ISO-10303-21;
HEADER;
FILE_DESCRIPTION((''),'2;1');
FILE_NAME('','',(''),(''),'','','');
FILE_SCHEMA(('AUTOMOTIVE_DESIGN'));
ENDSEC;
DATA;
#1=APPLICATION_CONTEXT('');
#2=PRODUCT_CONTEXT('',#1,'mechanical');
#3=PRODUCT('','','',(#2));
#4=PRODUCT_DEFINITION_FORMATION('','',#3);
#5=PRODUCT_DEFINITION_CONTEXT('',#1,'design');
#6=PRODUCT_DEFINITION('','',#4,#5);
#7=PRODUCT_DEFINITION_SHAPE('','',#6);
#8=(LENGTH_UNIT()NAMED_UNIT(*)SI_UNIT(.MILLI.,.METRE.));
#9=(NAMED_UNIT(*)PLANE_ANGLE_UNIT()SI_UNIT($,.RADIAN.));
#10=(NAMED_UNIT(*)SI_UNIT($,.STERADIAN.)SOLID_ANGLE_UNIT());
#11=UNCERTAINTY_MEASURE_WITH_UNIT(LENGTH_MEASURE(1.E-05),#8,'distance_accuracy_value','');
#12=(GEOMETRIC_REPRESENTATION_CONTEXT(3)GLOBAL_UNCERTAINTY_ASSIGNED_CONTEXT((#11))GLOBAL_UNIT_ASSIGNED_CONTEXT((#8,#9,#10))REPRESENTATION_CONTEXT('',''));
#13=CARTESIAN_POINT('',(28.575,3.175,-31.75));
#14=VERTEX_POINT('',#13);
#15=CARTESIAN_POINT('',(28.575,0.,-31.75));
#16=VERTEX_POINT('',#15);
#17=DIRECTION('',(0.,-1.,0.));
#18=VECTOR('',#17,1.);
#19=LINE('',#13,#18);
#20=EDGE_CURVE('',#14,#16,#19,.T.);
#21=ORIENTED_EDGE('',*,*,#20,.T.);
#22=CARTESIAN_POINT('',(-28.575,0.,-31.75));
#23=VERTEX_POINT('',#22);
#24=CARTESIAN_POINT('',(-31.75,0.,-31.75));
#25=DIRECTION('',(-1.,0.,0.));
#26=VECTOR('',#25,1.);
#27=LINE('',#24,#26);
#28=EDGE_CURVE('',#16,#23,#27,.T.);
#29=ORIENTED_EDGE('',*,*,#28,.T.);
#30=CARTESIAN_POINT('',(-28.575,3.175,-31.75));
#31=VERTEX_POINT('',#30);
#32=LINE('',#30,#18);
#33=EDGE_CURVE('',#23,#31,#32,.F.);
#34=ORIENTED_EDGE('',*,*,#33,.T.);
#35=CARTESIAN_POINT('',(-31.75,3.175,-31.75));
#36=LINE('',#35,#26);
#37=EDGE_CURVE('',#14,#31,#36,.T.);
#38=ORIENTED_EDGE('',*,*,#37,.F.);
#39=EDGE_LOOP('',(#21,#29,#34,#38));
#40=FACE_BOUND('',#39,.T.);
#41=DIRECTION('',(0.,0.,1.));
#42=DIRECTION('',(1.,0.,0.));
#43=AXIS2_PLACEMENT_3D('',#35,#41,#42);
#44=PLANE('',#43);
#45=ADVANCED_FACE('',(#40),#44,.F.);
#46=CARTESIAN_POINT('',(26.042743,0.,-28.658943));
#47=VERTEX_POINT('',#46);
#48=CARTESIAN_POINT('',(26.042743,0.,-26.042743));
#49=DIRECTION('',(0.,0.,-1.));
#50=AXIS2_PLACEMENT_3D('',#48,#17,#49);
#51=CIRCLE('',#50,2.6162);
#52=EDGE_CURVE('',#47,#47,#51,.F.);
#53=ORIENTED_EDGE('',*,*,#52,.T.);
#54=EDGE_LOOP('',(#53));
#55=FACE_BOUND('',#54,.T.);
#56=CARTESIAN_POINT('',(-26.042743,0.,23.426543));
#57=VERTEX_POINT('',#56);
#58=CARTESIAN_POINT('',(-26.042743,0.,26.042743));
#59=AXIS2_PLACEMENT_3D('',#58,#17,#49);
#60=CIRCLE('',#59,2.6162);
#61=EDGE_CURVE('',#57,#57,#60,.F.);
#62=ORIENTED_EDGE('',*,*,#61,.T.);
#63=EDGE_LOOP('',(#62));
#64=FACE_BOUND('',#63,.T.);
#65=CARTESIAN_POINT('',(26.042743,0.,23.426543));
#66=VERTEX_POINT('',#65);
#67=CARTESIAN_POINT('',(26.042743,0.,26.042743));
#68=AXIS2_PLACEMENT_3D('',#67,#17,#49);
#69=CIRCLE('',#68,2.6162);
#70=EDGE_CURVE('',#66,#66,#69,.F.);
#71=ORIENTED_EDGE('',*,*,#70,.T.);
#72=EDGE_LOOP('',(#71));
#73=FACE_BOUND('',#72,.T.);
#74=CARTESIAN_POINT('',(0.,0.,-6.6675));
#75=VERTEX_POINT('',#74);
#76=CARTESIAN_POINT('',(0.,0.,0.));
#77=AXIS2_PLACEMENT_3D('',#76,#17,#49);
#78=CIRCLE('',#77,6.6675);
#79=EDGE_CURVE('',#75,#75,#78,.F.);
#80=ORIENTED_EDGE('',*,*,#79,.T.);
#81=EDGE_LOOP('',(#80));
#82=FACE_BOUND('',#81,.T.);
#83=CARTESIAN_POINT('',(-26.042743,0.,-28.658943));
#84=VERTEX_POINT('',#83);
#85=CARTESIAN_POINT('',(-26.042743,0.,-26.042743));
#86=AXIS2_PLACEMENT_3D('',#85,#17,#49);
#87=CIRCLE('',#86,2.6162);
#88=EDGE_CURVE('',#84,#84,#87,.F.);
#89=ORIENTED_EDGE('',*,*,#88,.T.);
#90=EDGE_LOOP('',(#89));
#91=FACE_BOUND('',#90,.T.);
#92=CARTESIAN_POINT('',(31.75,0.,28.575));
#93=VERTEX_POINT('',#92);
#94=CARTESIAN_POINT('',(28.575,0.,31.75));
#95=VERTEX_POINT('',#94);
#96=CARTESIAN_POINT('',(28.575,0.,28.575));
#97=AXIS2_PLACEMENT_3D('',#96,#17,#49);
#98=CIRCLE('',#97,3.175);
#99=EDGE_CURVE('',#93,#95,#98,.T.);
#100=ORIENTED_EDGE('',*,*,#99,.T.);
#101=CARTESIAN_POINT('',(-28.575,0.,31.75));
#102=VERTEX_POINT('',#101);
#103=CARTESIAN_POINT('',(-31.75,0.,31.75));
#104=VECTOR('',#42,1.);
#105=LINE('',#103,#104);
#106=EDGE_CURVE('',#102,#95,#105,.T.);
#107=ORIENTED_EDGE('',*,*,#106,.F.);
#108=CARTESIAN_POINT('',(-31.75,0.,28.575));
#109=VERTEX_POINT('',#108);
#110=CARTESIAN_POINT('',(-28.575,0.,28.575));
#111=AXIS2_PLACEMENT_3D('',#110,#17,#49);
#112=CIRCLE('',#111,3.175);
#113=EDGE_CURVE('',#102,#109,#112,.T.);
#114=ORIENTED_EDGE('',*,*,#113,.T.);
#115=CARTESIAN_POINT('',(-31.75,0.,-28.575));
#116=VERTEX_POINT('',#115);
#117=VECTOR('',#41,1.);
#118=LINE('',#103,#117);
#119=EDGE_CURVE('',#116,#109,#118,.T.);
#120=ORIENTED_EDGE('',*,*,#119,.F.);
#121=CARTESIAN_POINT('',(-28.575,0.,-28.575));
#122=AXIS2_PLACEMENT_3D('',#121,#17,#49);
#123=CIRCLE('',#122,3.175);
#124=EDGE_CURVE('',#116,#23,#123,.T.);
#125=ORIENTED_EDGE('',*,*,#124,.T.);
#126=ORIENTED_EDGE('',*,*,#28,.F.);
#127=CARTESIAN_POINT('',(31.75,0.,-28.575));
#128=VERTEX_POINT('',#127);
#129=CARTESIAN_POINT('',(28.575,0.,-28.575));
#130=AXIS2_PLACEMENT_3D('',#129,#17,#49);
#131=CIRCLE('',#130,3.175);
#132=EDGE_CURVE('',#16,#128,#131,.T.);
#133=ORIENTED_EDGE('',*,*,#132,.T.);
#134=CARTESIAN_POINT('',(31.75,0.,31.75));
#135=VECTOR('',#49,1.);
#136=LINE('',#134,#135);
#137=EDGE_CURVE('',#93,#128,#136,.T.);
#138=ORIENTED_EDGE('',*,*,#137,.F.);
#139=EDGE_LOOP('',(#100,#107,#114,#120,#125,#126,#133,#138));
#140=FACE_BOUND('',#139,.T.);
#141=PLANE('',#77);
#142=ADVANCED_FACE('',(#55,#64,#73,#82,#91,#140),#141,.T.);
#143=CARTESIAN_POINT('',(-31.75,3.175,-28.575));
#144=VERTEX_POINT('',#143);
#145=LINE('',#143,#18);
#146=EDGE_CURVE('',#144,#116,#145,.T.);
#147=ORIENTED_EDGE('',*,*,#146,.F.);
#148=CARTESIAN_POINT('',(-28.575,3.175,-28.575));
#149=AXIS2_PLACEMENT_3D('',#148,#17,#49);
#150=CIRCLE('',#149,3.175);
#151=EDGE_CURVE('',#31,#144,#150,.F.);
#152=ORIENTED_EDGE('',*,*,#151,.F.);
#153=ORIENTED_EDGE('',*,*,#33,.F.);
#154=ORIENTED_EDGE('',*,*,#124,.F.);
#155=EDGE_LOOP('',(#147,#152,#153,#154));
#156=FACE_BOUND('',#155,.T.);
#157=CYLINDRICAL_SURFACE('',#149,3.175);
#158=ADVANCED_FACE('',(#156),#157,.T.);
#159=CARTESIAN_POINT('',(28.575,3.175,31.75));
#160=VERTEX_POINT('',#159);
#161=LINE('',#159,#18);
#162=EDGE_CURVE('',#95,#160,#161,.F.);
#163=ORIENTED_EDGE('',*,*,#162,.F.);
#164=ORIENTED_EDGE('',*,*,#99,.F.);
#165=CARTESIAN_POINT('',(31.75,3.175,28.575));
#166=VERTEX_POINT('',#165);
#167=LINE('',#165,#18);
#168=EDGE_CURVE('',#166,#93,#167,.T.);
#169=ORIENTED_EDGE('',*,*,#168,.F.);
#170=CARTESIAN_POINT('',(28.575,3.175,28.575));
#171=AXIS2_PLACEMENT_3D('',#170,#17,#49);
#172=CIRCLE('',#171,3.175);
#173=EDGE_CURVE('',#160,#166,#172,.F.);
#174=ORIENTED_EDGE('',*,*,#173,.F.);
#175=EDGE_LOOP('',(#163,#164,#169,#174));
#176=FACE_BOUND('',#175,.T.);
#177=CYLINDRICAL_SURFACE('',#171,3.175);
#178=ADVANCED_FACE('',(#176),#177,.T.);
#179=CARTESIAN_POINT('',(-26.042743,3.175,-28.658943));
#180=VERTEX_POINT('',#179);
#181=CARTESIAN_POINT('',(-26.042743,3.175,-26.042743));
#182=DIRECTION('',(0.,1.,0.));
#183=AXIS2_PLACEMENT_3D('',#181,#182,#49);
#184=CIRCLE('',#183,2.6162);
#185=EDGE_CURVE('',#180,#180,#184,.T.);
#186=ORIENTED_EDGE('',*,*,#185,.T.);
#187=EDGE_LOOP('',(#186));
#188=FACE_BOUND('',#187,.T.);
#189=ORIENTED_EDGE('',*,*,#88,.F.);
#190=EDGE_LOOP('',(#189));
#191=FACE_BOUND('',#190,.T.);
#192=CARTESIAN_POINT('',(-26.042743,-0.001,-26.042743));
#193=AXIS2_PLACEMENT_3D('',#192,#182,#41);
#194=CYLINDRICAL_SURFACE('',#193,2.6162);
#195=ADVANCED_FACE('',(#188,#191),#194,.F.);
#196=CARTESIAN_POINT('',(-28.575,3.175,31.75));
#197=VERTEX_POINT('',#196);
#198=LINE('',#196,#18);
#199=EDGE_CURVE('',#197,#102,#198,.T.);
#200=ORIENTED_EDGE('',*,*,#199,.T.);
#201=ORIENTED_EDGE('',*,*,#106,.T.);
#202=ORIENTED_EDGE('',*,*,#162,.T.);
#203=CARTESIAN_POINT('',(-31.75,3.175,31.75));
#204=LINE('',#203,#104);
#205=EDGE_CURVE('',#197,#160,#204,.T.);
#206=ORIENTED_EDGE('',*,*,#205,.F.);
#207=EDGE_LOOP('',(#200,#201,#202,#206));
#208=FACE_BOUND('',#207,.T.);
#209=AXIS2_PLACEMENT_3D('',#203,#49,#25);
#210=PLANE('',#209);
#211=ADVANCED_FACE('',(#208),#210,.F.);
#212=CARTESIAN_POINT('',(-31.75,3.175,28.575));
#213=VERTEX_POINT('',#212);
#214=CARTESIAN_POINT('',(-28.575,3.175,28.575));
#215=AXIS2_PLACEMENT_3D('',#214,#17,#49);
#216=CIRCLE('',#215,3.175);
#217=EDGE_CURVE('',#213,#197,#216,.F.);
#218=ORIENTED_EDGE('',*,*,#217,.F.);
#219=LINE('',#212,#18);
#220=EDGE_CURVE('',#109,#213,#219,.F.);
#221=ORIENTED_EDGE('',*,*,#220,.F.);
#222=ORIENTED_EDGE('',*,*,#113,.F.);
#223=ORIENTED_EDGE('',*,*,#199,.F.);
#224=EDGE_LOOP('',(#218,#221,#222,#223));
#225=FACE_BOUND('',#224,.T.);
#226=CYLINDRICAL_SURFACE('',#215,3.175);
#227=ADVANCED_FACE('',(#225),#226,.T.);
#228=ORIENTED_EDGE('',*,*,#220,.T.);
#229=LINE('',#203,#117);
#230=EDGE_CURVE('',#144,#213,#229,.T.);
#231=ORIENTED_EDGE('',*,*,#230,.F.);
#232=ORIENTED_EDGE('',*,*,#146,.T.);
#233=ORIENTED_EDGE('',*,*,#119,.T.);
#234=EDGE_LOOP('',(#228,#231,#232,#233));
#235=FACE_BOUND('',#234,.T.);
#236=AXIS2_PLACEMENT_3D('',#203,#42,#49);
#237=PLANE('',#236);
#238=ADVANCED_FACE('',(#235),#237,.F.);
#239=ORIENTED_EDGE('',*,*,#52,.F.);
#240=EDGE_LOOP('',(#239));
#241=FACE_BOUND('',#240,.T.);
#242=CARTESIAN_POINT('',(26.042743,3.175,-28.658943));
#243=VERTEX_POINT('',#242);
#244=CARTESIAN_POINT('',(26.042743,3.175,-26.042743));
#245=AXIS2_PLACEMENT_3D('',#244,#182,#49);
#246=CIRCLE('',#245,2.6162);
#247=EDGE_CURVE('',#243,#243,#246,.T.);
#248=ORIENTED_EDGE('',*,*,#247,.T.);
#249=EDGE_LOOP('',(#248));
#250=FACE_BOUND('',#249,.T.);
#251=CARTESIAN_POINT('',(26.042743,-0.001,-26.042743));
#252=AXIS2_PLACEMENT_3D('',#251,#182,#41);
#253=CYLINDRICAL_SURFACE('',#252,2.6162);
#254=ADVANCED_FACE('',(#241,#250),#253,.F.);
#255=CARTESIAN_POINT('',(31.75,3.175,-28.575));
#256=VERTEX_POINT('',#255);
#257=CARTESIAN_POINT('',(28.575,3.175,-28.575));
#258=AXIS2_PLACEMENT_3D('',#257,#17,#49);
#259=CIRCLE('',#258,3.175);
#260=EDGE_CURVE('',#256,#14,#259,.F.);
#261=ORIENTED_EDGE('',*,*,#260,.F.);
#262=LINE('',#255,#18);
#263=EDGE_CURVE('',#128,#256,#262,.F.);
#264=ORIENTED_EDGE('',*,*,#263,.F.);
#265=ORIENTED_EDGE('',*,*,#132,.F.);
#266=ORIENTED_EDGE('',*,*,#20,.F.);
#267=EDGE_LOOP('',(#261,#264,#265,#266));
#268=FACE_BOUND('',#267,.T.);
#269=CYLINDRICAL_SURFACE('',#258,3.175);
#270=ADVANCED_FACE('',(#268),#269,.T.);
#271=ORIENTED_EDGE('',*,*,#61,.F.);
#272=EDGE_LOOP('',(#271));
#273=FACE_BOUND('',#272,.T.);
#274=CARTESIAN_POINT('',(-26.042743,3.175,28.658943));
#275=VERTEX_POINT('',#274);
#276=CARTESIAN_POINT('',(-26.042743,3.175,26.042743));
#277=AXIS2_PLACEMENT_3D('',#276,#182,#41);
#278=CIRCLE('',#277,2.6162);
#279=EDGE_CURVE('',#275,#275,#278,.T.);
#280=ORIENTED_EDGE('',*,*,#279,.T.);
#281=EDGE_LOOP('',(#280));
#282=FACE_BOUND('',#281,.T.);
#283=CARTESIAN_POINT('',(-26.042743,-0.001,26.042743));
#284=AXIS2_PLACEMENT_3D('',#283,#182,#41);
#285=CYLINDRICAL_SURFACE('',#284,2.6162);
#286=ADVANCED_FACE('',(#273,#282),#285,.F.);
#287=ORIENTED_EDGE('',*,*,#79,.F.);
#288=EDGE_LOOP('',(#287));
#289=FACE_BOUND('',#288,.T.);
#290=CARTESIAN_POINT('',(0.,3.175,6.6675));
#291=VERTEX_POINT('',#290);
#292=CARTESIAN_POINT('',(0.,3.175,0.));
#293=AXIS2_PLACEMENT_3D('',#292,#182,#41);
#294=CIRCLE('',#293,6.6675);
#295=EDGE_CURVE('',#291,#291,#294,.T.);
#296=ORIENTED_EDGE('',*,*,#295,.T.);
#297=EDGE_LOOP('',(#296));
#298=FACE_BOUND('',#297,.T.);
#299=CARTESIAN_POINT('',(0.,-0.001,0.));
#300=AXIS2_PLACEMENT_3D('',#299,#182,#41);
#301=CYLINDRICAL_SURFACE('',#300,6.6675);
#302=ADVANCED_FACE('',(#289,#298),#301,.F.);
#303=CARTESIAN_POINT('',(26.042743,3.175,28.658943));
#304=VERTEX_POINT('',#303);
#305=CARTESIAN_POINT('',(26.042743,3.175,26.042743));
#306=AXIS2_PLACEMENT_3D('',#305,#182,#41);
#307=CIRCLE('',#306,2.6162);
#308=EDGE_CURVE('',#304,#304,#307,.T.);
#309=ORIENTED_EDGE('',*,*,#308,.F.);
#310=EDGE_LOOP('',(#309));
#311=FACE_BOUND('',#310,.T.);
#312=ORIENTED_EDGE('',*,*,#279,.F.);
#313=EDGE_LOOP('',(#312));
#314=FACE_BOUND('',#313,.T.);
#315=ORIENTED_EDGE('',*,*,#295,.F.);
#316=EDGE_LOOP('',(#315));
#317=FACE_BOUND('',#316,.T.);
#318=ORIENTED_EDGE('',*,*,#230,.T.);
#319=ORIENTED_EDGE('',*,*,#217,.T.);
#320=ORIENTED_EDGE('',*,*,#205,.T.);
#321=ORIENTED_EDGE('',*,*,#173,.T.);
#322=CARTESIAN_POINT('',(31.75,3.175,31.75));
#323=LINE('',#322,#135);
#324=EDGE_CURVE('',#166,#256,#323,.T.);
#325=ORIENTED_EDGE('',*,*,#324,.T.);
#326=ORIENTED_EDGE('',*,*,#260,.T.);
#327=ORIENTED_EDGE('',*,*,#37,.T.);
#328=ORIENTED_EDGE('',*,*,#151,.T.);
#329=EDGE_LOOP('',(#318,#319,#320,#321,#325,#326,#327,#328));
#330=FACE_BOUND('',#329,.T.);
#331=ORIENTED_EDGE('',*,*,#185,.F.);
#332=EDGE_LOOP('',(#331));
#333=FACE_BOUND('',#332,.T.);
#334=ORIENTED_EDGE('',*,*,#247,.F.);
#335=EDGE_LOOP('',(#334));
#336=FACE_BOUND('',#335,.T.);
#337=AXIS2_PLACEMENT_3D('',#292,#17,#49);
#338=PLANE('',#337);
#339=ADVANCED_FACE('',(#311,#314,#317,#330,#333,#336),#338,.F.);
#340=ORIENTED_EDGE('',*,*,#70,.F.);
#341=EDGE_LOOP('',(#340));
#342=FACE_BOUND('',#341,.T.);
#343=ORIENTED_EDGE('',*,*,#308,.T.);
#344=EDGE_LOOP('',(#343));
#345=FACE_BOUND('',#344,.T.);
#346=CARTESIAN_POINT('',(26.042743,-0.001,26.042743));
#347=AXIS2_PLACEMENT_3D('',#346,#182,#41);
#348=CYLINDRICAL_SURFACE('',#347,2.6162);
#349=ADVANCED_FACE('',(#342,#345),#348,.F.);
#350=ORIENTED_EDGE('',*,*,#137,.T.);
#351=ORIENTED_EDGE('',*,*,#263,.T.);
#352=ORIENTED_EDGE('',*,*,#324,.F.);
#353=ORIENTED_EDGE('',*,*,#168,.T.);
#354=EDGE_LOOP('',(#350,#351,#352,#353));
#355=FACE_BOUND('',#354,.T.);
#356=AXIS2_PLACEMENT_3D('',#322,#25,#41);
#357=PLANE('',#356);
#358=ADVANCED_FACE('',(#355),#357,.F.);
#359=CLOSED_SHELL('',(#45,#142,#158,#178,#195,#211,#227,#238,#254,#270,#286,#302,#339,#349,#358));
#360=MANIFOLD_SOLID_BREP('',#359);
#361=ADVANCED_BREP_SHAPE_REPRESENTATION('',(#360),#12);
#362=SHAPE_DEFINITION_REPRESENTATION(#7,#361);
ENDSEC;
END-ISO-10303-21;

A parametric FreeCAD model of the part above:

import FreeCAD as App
import Part
import Sketcher
from FreeCAD import Vector
Q = App.Units.Quantity


def edges_at(feature, points):
    """Names of the edges that pass closest to the given points."""
    edges = feature.Shape.Edges
    near = lambda p: min(range(len(edges)), key=lambda i: edges[i].distToShape(Part.Vertex(*p))[0])
    return sorted({f"Edge{near(p) + 1}" for p in points})


def add_polygon(sketch, points):
    """Adds a closed chain of lines whose ends are joined by coincident constraints."""
    first, n = sketch.GeometryCount, len(points)
    for a, b in zip(points, points[1:] + points[:1]):
        sketch.addGeometry(Part.LineSegment(App.Vector(*a, 0), App.Vector(*b, 0)), False)
    for i in range(n):
        sketch.addConstraint(Sketcher.Constraint("Coincident", first + i, 2, first + (i + 1) % n, 1))

doc = App.newDocument("Part")
body = doc.addObject("PartDesign::Body", "Body")

# Sketch on XZ plane
sketch1 = body.newObject("Sketcher::SketchObject", "Sketch")
sketch1.AttachmentSupport = (doc.getObject("XZ_Plane"), [""])
sketch1.MapMode = "FlatFace"
add_polygon(sketch1, [(-32, -32), (-32, 32), (32, 32), (32, -32)])  # lines 0-3
sketch1.addConstraint([
    Sketcher.Constraint("Vertical", 0),
    Sketcher.Constraint("Horizontal", 1),
    Sketcher.Constraint("Vertical", 2),
    Sketcher.Constraint("Horizontal", 3),
    Sketcher.Constraint("Symmetric", 0, 2, 2, 2, -1, 1),
    Sketcher.Constraint("Equal", 3, 0),
    Sketcher.Constraint("DistanceX", 1, 1, 1, 2, Q("2.5 in")),
])
pad1 = body.newObject("PartDesign::Pad", "Pad")
pad1.Profile = sketch1
pad1.Length = Q("0.125 in")
pad1.Reversed = True
doc.recompute()

fillet = body.newObject("PartDesign::Fillet", "Fillet")
fillet.Base = (pad1, edges_at(pad1, [
    (31.75, 1.587, 31.75),
    (-31.75, 1.587, 31.75),
    (-31.75, 1.587, -31.75),
    (31.75, 1.587, -31.75),
]))
fillet.Radius = Q("0.125 in")

# Sketch on XZ plane
sketch2 = body.newObject("Sketcher::SketchObject", "Sketch001")
sketch2.AttachmentSupport = (doc.getObject("XZ_Plane"), [""])
sketch2.MapMode = "FlatFace"
sketch2.AttachmentOffset = App.Placement(Vector(0, 0, -0.125 * 25.4), App.Rotation())
sketch2.addGeometry(Part.Circle(Vector(0, 0, 0), Vector(0, 0, 1), 7), False)
sketch2.addConstraint([
    Sketcher.Constraint("Coincident", 0, 3, -1, 1),
    Sketcher.Constraint("Diameter", 0, Q("0.525 in")),
])
pocket1 = body.newObject("PartDesign::Pocket", "Pocket")
pocket1.Profile = sketch2
pocket1.Type = "UpToFirst"
pocket1.Reversed = True

# Sketch on XZ plane
sketch3 = body.newObject("Sketcher::SketchObject", "Sketch002")
sketch3.AttachmentSupport = (doc.getObject("XZ_Plane"), [""])
sketch3.MapMode = "FlatFace"
sketch3.AttachmentOffset = App.Placement(Vector(0, 0, -0.125 * 25.4), App.Rotation())
sketch3.addGeometry(Part.Circle(Vector(26, 26, 0), Vector(0, 0, 1), 2.6), False)
sketch3.addConstraint([
    Sketcher.Constraint("Diameter", 0, Q("0.206 in")),
    Sketcher.Constraint("DistanceX", -1, 1, 0, 3, 26.042743),
    Sketcher.Constraint("DistanceY", -1, 1, 0, 3, 26.042743),
])
pocket2 = body.newObject("PartDesign::Pocket", "Pocket001")
pocket2.Profile = sketch3
pocket2.Type = "UpToFirst"
pocket2.Reversed = True

# Sketch on XZ plane
sketch4 = body.newObject("Sketcher::SketchObject", "Sketch003")
sketch4.AttachmentSupport = (doc.getObject("XZ_Plane"), [""])
sketch4.MapMode = "FlatFace"
sketch4.AttachmentOffset = App.Placement(Vector(0, 0, -0.125 * 25.4), App.Rotation())
sketch4.addGeometry(Part.Circle(Vector(-26, 26, 0), Vector(0, 0, 1), 2.6), False)
sketch4.addConstraint([
    Sketcher.Constraint("Diameter", 0, Q("0.206 in")),
    Sketcher.Constraint("DistanceX", 0, 3, -1, 1, 26.042743),
    Sketcher.Constraint("DistanceY", -1, 1, 0, 3, 26.042743),
])
pocket3 = body.newObject("PartDesign::Pocket", "Pocket002")
pocket3.Profile = sketch4
pocket3.Type = "UpToFirst"
pocket3.Reversed = True

# Sketch on XZ plane
sketch5 = body.newObject("Sketcher::SketchObject", "Sketch004")
sketch5.AttachmentSupport = (doc.getObject("XZ_Plane"), [""])
sketch5.MapMode = "FlatFace"
sketch5.AttachmentOffset = App.Placement(Vector(0, 0, -0.125 * 25.4), App.Rotation())
sketch5.addGeometry(Part.Circle(Vector(26, -26, 0), Vector(0, 0, 1), 2.6), False)
sketch5.addConstraint([
    Sketcher.Constraint("Diameter", 0, Q("0.206 in")),
    Sketcher.Constraint("DistanceX", -1, 1, 0, 3, 26.042743),
    Sketcher.Constraint("DistanceY", 0, 3, -1, 1, 26.042743),
])
pocket4 = body.newObject("PartDesign::Pocket", "Pocket003")
pocket4.Profile = sketch5
pocket4.Type = "UpToFirst"
pocket4.Reversed = True

# Sketch on XZ plane
sketch6 = body.newObject("Sketcher::SketchObject", "Sketch005")
sketch6.AttachmentSupport = (doc.getObject("XZ_Plane"), [""])
sketch6.MapMode = "FlatFace"
sketch6.AttachmentOffset = App.Placement(Vector(0, 0, -0.125 * 25.4), App.Rotation())
sketch6.addGeometry(Part.Circle(Vector(-26, -26, 0), Vector(0, 0, 1), 2.6), False)
sketch6.addConstraint([
    Sketcher.Constraint("Diameter", 0, Q("0.206 in")),
    Sketcher.Constraint("DistanceX", 0, 3, -1, 1, 26.042743),
    Sketcher.Constraint("DistanceY", 0, 3, -1, 1, 26.042743),
])
pocket5 = body.newObject("PartDesign::Pocket", "Pocket004")
pocket5.Profile = sketch6
pocket5.Type = "UpToFirst"
pocket5.Reversed = True

doc.recompute()
